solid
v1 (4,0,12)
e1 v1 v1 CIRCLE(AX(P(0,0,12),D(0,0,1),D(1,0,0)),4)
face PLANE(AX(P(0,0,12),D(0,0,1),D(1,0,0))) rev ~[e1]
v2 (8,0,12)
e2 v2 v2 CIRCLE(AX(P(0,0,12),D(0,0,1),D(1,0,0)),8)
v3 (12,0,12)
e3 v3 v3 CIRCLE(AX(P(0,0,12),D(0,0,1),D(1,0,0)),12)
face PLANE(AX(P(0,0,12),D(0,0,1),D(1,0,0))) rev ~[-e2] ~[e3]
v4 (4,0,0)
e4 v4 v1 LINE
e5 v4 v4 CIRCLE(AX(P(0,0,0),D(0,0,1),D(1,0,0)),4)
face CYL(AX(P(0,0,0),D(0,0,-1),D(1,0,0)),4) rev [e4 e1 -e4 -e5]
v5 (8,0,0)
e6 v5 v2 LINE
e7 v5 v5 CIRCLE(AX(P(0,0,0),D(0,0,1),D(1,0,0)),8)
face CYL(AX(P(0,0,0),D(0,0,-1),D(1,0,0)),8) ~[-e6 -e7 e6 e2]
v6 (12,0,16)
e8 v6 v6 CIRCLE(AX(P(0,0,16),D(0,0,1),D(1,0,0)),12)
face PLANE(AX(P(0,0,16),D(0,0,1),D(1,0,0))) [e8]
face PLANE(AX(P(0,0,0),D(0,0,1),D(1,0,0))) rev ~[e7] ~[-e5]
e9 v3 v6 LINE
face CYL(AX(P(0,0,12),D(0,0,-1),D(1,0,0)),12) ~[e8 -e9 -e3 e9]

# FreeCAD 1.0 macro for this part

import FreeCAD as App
import Part
import Sketcher

V = App.Vector

doc = App.newDocument("Part")
params = doc.addObject("Spreadsheet::Sheet", "Params")
for row, (alias, value) in enumerate([
    ("sketch1_diameter", "16 mm"),
    ("sketch1_diameter2", "8 mm"),
    ("pad1_length", "12 mm"),
    ("sketch2_diameter", "24 mm"),
    ("pad2_length", "4 mm"),
], start=1):
    params.set(f"A{row}", alias)
    params.set(f"B{row}", "=" + value)
    params.setAlias(f"B{row}", alias)

body = doc.addObject("PartDesign::Body", "Body")

sketch1 = body.newObject("Sketcher::SketchObject", "Sketch")
sketch1.AttachmentSupport = (doc.getObject("XY_Plane"), [""])
sketch1.MapMode = "FlatFace"
sketch1.addGeometry([
    Part.Circle(V(0, 0, 0), V(0, 0, 1), 8),
    Part.Circle(V(0, 0, 0), V(0, 0, 1), 4),
], False)
sketch1.addConstraint([
    Sketcher.Constraint("Coincident", 0, 3, -1, 1),
    Sketcher.Constraint("Coincident", 1, 3, -1, 1),
    Sketcher.Constraint("Diameter", 0, 16.0),
    Sketcher.Constraint("Diameter", 1, 8.0),
])
sketch1.setExpression("Constraints[2]", "Params.sketch1_diameter")
sketch1.setExpression("Constraints[3]", "Params.sketch1_diameter2")
pad1 = body.newObject("PartDesign::Pad", "Pad")
pad1.Profile = sketch1
pad1.setExpression("Length", "Params.pad1_length")

sketch2 = body.newObject("Sketcher::SketchObject", "Sketch001")
sketch2.AttachmentSupport = (doc.getObject("XY_Plane"), [""])
sketch2.MapMode = "FlatFace"
sketch2.AttachmentOffset = App.Placement(V(0, 0, 12), App.Rotation())
sketch2.addGeometry(Part.Circle(V(0, 0, 0), V(0, 0, 1), 12), False)
sketch2.addConstraint([
    Sketcher.Constraint("Coincident", 0, 3, -1, 1),
    Sketcher.Constraint("Diameter", 0, 24.0),
])
sketch2.setExpression("Constraints[1]", "Params.sketch2_diameter")
pad2 = body.newObject("PartDesign::Pad", "Pad001")
pad2.Profile = sketch2
pad2.setExpression("Length", "Params.pad2_length")

doc.recompute()
